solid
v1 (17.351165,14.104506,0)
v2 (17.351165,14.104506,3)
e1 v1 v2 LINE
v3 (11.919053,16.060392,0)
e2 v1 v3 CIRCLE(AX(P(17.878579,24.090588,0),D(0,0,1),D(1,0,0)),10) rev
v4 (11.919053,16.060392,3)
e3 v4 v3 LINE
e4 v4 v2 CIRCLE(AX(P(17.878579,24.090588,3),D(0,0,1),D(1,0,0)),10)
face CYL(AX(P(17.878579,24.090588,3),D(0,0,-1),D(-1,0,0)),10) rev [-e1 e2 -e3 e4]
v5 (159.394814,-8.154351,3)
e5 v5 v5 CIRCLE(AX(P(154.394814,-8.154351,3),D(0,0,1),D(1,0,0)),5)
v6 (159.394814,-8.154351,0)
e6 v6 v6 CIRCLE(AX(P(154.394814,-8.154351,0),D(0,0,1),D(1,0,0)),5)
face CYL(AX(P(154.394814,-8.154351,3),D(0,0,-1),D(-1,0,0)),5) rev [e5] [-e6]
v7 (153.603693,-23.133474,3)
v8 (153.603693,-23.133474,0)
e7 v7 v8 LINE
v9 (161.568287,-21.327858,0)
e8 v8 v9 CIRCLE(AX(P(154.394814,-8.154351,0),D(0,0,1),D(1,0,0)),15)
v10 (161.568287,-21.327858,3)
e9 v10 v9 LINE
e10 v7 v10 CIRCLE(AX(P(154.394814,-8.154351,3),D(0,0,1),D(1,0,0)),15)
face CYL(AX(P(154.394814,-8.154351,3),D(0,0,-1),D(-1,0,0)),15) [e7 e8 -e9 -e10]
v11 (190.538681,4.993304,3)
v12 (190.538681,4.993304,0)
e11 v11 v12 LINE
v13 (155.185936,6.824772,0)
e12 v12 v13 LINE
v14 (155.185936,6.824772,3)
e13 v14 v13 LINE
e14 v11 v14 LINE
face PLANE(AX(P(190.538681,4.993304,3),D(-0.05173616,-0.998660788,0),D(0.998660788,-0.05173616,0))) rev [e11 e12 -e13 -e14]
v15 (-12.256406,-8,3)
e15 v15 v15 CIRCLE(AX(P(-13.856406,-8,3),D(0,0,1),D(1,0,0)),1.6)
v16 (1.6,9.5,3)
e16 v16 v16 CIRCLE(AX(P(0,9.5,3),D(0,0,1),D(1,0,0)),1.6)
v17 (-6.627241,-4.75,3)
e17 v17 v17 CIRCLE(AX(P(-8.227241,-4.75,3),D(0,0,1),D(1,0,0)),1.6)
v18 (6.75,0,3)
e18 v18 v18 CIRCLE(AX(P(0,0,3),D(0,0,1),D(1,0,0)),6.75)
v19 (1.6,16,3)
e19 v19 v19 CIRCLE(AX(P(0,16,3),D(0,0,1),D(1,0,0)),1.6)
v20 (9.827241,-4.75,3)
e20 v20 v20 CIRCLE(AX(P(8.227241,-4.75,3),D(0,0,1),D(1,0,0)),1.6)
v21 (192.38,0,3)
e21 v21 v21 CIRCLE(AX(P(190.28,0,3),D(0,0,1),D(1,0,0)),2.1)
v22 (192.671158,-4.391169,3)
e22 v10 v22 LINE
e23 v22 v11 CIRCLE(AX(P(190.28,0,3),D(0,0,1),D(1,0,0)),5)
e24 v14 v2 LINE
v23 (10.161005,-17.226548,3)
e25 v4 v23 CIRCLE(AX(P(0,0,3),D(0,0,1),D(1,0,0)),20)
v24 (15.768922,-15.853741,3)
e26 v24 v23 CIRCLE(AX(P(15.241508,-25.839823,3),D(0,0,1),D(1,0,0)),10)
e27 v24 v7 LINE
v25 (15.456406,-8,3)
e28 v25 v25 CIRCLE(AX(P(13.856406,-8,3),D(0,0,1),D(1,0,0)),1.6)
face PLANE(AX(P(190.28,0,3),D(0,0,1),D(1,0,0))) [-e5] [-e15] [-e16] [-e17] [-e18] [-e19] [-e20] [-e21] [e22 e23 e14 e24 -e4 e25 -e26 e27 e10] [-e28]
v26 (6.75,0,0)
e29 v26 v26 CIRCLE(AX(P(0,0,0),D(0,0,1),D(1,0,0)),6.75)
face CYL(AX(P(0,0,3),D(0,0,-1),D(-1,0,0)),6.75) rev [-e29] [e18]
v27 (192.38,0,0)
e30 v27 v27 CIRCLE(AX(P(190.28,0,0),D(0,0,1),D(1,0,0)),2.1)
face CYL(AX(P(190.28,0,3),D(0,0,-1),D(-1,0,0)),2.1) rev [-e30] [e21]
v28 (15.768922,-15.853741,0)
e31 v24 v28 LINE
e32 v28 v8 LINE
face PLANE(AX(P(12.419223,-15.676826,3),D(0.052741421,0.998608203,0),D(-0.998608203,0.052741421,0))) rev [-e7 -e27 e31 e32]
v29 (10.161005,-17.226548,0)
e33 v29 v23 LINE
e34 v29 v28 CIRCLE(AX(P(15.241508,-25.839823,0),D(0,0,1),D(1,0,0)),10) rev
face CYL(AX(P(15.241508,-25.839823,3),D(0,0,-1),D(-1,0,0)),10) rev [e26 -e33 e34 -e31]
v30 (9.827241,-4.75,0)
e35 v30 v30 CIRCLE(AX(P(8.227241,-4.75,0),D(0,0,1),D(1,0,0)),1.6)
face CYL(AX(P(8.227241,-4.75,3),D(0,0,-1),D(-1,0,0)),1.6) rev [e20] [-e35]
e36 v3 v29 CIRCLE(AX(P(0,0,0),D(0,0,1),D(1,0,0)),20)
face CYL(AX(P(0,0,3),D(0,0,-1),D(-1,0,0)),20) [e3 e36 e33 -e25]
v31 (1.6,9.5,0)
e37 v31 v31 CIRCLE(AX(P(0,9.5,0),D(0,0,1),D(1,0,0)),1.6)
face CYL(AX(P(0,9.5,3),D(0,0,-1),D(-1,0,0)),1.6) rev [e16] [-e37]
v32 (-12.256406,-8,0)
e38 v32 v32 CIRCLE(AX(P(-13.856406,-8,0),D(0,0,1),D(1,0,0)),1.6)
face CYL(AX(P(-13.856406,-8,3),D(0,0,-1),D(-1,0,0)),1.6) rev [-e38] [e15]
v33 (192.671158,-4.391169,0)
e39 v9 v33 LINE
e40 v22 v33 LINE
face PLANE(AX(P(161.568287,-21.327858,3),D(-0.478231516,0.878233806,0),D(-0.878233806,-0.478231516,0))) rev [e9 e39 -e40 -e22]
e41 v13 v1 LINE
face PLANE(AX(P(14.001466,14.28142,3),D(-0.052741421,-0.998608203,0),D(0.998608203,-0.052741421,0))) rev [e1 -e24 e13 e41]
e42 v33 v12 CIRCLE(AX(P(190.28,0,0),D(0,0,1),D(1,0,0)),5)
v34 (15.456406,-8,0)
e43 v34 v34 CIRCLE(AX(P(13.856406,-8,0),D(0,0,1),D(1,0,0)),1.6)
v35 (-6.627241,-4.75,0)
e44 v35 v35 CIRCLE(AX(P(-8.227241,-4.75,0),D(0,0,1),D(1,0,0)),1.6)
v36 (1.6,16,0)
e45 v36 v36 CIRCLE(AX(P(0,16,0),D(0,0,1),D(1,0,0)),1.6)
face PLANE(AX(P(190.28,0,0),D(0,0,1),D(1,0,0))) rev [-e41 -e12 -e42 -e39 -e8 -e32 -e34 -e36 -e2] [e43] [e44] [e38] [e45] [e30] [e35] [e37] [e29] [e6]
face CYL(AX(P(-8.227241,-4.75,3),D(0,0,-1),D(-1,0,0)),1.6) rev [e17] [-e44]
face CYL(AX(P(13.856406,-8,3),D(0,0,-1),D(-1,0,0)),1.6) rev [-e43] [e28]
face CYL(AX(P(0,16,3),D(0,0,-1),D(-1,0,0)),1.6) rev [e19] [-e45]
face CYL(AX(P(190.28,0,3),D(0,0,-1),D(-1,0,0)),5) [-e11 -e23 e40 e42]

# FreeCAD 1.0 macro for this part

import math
import FreeCAD as App
import Part
import Sketcher
from FreeCAD import Vector
Q = App.Units.Quantity


def edges_at(feature, points):
    """Names of the edges that pass closest to the given points."""
    edges = feature.Shape.Edges
    near = lambda p: min(range(len(edges)), key=lambda i: edges[i].distToShape(Part.Vertex(*p))[0])
    return sorted({f"Edge{near(p) + 1}" for p in points})

doc = App.newDocument("Part")
params = doc.addObject("Spreadsheet::Sheet", "Params")
for row, (alias, value) in enumerate([
    ("sketch1_diameter", "10 mm"),
    ("sketch1_radius", "15 mm"),
    ("sketch1_radius2", "5 mm"),
    ("sketch1_radius3", "20 mm"),
    ("sketch1_diameter2", "3.2 mm"),
    ("pad1_length", "3 mm"),
    ("fillet_radius", "10 mm"),
    ("fillet2_radius", "10 mm"),
], start=1):
    params.set(f"A{row}", alias)
    params.set(f"B{row}", "=" + value)
    params.setAlias(f"B{row}", alias)

body = doc.addObject("PartDesign::Body", "Body")

# Sketch on XY plane
sketch1 = body.newObject("Sketcher::SketchObject", "Sketch")
sketch1.AttachmentSupport = (doc.getObject("XY_Plane"), [""])
sketch1.MapMode = "FlatFace"
sketch1.addGeometry(Part.LineSegment(Vector(12.419223, -15.676826, 0), Vector(153.603693, -23.133474, 0)), False)
sketch1.addGeometry(Part.ArcOfCircle(Part.Circle(Vector(154.394814, -8.154351, 0), Vector(0, 0, 1), 15), math.radians(-93.023264), math.radians(-61.430037)), False)
sketch1.addGeometry(Part.LineSegment(Vector(161.568287, -21.327858, 0), Vector(192.671158, -4.391169, 0)), False)
sketch1.addGeometry(Part.ArcOfCircle(Part.Circle(Vector(190.28, 0, 0), Vector(0, 0, 1), 5), math.radians(-61.430037), math.radians(87.034412)), False)
sketch1.addGeometry(Part.LineSegment(Vector(190.538681, 4.993304, 0), Vector(155.185936, 6.824772, 0)), False)
sketch1.addGeometry(Part.LineSegment(Vector(155.185936, 6.824772, 0), Vector(14.001466, 14.28142, 0)), False)
sketch1.addGeometry(Part.ArcOfCircle(Part.Circle(Vector(0, 0, 0), Vector(0, 0, 1), 20), math.radians(45.567114), math.radians(308.386359)), False)
sketch1.addGeometry(Part.Circle(Vector(-13.856406, -8, 0), Vector(0, 0, 1), 1.6), False)
sketch1.addGeometry(Part.Circle(Vector(13.856406, -8, 0), Vector(0, 0, 1), 1.6), False)
sketch1.addGeometry(Part.Circle(Vector(-8.227241, -4.75, 0), Vector(0, 0, 1), 1.6), False)
sketch1.addGeometry(Part.Circle(Vector(8.227241, -4.75, 0), Vector(0, 0, 1), 1.6), False)
sketch1.addGeometry(Part.Circle(Vector(0, 0, 0), Vector(0, 0, 1), 6.75), False)
sketch1.addGeometry(Part.Circle(Vector(154.394814, -8.154351, 0), Vector(0, 0, 1), 5), False)
sketch1.addGeometry(Part.Circle(Vector(190.28, 0, 0), Vector(0, 0, 1), 2.1), False)
sketch1.addGeometry(Part.Circle(Vector(0, 9.5, 0), Vector(0, 0, 1), 1.6), False)
sketch1.addGeometry(Part.Circle(Vector(0, 16, 0), Vector(0, 0, 1), 1.6), False)
sketch1.addConstraint(Sketcher.Constraint("Coincident", 0, 2, 1, 1))
sketch1.addConstraint(Sketcher.Constraint("Coincident", 1, 2, 2, 1))
sketch1.addConstraint(Sketcher.Constraint("Coincident", 2, 2, 3, 1))
sketch1.addConstraint(Sketcher.Constraint("Coincident", 3, 2, 4, 1))
sketch1.addConstraint(Sketcher.Constraint("Coincident", 4, 2, 5, 1))
sketch1.addConstraint(Sketcher.Constraint("Coincident", 5, 2, 6, 1))
sketch1.addConstraint(Sketcher.Constraint("Coincident", 6, 2, 0, 1))
sketch1.addConstraint(Sketcher.Constraint("Coincident", 6, 3, -1, 1))
sketch1.addConstraint(Sketcher.Constraint("Coincident", 11, 3, -1, 1))
sketch1.addConstraint(Sketcher.Constraint("Coincident", 12, 3, 1, 3))
sketch1.addConstraint(Sketcher.Constraint("Coincident", 13, 3, 3, 3))
sketch1.addConstraint(Sketcher.Constraint("PointOnObject", 3, 3, -1))
sketch1.addConstraint(Sketcher.Constraint("PointOnObject", 14, 3, -2))
sketch1.addConstraint(Sketcher.Constraint("PointOnObject", 15, 3, -2))
sketch1.addConstraint(Sketcher.Constraint("Diameter", 12, Q("10 mm")))
sketch1.addConstraint(Sketcher.Constraint("Radius", 1, Q("15 mm")))
sketch1.addConstraint(Sketcher.Constraint("Radius", 3, Q("5 mm")))
sketch1.addConstraint(Sketcher.Constraint("Radius", 6, Q("20 mm")))
sketch1.addConstraint(Sketcher.Constraint("Diameter", 7, Q("3.2 mm")))
sketch1.addConstraint(Sketcher.Constraint("Diameter", 8, Q("3.2 mm")))
sketch1.addConstraint(Sketcher.Constraint("Diameter", 9, Q("3.2 mm")))
sketch1.addConstraint(Sketcher.Constraint("Diameter", 10, Q("3.2 mm")))
sketch1.addConstraint(Sketcher.Constraint("Diameter", 11, Q("13.5 mm")))
sketch1.addConstraint(Sketcher.Constraint("Diameter", 13, Q("4.2 mm")))
sketch1.addConstraint(Sketcher.Constraint("Diameter", 14, Q("3.2 mm")))
sketch1.addConstraint(Sketcher.Constraint("Diameter", 15, Q("3.2 mm")))
sketch1.addConstraint(Sketcher.Constraint("DistanceY", 7, 3, -1, 1, Q("8 mm")))
sketch1.addConstraint(Sketcher.Constraint("DistanceY", 8, 3, -1, 1, Q("8 mm")))
sketch1.addConstraint(Sketcher.Constraint("DistanceY", -1, 1, 15, 3, Q("16 mm")))
sketch1.addConstraint(Sketcher.Constraint("DistanceY", -1, 1, 14, 3, Q("9.5 mm")))
sketch1.addConstraint(Sketcher.Constraint("DistanceX", -1, 1, 3, 3, Q("190.28 mm")))
sketch1.addConstraint(Sketcher.Constraint("DistanceY", 9, 3, -1, 1, Q("4.75 mm")))
sketch1.addConstraint(Sketcher.Constraint("DistanceY", 10, 3, -1, 1, Q("4.75 mm")))
sketch1.addConstraint(Sketcher.Constraint("Distance", 2, Q("35.415251 mm")))
sketch1.addConstraint(Sketcher.Constraint("DistanceY", 1, 3, -1, 1, Q("8.154351 mm")))
sketch1.addConstraint(Sketcher.Constraint("DistanceX", 9, 3, -1, 1, Q("8.227241 mm")))
sketch1.addConstraint(Sketcher.Constraint("DistanceX", -1, 1, 10, 3, Q("8.227241 mm")))
sketch1.addConstraint(Sketcher.Constraint("DistanceY", 1, 2, -1, 1, Q("21.327858 mm")))
sketch1.addConstraint(Sketcher.Constraint("DistanceY", 2, 2, -1, 1, Q("4.391169 mm")))
sketch1.addConstraint(Sketcher.Constraint("DistanceX", -1, 1, 3, 2, Q("190.538681 mm")))
sketch1.addConstraint(Sketcher.Constraint("DistanceY", -1, 1, 4, 2, Q("6.824772 mm")))
sketch1.addConstraint(Sketcher.Constraint("DistanceY", -1, 1, 5, 2, Q("14.28142 mm")))
sketch1.addConstraint(Sketcher.Constraint("DistanceX", 7, 3, 1, 3, Q("168.251221 mm")))
sketch1.addConstraint(Sketcher.Constraint("DistanceX", 0, 2, 12, 3, Q("0.791121 mm")))
sketch1.addConstraint(Sketcher.Constraint("DistanceX", 1, 3, 4, 2, Q("0.791121 mm")))
sketch1.addConstraint(Sketcher.Constraint("Distance", 0, Q("141.381243 mm")))
sketch1.addConstraint(Sketcher.Constraint("DistanceX", -1, 1, 8, 3, Q("13.856406 mm")))
sketch1.setExpression("Constraints[14]", "Params.sketch1_diameter")
sketch1.setExpression("Constraints[15]", "Params.sketch1_radius")
sketch1.setExpression("Constraints[16]", "Params.sketch1_radius2")
sketch1.setExpression("Constraints[17]", "Params.sketch1_radius3")
sketch1.setExpression("Constraints[18]", "Params.sketch1_diameter2")
pad1 = body.newObject("PartDesign::Pad", "Pad")
pad1.Profile = sketch1
pad1.setExpression("Length", "Params.pad1_length")
doc.recompute()

fillet = body.newObject("PartDesign::Fillet", "Fillet")
fillet.Base = (pad1, edges_at(pad1, [(14.001, 14.281, 1.5)]))
fillet.setExpression("Radius", "Params.fillet_radius")
doc.recompute()

fillet2 = body.newObject("PartDesign::Fillet", "Fillet001")
fillet2.Base = (fillet, edges_at(fillet, [(12.419, -15.677, 1.5)]))
fillet2.setExpression("Radius", "Params.fillet2_radius")

doc.recompute()
